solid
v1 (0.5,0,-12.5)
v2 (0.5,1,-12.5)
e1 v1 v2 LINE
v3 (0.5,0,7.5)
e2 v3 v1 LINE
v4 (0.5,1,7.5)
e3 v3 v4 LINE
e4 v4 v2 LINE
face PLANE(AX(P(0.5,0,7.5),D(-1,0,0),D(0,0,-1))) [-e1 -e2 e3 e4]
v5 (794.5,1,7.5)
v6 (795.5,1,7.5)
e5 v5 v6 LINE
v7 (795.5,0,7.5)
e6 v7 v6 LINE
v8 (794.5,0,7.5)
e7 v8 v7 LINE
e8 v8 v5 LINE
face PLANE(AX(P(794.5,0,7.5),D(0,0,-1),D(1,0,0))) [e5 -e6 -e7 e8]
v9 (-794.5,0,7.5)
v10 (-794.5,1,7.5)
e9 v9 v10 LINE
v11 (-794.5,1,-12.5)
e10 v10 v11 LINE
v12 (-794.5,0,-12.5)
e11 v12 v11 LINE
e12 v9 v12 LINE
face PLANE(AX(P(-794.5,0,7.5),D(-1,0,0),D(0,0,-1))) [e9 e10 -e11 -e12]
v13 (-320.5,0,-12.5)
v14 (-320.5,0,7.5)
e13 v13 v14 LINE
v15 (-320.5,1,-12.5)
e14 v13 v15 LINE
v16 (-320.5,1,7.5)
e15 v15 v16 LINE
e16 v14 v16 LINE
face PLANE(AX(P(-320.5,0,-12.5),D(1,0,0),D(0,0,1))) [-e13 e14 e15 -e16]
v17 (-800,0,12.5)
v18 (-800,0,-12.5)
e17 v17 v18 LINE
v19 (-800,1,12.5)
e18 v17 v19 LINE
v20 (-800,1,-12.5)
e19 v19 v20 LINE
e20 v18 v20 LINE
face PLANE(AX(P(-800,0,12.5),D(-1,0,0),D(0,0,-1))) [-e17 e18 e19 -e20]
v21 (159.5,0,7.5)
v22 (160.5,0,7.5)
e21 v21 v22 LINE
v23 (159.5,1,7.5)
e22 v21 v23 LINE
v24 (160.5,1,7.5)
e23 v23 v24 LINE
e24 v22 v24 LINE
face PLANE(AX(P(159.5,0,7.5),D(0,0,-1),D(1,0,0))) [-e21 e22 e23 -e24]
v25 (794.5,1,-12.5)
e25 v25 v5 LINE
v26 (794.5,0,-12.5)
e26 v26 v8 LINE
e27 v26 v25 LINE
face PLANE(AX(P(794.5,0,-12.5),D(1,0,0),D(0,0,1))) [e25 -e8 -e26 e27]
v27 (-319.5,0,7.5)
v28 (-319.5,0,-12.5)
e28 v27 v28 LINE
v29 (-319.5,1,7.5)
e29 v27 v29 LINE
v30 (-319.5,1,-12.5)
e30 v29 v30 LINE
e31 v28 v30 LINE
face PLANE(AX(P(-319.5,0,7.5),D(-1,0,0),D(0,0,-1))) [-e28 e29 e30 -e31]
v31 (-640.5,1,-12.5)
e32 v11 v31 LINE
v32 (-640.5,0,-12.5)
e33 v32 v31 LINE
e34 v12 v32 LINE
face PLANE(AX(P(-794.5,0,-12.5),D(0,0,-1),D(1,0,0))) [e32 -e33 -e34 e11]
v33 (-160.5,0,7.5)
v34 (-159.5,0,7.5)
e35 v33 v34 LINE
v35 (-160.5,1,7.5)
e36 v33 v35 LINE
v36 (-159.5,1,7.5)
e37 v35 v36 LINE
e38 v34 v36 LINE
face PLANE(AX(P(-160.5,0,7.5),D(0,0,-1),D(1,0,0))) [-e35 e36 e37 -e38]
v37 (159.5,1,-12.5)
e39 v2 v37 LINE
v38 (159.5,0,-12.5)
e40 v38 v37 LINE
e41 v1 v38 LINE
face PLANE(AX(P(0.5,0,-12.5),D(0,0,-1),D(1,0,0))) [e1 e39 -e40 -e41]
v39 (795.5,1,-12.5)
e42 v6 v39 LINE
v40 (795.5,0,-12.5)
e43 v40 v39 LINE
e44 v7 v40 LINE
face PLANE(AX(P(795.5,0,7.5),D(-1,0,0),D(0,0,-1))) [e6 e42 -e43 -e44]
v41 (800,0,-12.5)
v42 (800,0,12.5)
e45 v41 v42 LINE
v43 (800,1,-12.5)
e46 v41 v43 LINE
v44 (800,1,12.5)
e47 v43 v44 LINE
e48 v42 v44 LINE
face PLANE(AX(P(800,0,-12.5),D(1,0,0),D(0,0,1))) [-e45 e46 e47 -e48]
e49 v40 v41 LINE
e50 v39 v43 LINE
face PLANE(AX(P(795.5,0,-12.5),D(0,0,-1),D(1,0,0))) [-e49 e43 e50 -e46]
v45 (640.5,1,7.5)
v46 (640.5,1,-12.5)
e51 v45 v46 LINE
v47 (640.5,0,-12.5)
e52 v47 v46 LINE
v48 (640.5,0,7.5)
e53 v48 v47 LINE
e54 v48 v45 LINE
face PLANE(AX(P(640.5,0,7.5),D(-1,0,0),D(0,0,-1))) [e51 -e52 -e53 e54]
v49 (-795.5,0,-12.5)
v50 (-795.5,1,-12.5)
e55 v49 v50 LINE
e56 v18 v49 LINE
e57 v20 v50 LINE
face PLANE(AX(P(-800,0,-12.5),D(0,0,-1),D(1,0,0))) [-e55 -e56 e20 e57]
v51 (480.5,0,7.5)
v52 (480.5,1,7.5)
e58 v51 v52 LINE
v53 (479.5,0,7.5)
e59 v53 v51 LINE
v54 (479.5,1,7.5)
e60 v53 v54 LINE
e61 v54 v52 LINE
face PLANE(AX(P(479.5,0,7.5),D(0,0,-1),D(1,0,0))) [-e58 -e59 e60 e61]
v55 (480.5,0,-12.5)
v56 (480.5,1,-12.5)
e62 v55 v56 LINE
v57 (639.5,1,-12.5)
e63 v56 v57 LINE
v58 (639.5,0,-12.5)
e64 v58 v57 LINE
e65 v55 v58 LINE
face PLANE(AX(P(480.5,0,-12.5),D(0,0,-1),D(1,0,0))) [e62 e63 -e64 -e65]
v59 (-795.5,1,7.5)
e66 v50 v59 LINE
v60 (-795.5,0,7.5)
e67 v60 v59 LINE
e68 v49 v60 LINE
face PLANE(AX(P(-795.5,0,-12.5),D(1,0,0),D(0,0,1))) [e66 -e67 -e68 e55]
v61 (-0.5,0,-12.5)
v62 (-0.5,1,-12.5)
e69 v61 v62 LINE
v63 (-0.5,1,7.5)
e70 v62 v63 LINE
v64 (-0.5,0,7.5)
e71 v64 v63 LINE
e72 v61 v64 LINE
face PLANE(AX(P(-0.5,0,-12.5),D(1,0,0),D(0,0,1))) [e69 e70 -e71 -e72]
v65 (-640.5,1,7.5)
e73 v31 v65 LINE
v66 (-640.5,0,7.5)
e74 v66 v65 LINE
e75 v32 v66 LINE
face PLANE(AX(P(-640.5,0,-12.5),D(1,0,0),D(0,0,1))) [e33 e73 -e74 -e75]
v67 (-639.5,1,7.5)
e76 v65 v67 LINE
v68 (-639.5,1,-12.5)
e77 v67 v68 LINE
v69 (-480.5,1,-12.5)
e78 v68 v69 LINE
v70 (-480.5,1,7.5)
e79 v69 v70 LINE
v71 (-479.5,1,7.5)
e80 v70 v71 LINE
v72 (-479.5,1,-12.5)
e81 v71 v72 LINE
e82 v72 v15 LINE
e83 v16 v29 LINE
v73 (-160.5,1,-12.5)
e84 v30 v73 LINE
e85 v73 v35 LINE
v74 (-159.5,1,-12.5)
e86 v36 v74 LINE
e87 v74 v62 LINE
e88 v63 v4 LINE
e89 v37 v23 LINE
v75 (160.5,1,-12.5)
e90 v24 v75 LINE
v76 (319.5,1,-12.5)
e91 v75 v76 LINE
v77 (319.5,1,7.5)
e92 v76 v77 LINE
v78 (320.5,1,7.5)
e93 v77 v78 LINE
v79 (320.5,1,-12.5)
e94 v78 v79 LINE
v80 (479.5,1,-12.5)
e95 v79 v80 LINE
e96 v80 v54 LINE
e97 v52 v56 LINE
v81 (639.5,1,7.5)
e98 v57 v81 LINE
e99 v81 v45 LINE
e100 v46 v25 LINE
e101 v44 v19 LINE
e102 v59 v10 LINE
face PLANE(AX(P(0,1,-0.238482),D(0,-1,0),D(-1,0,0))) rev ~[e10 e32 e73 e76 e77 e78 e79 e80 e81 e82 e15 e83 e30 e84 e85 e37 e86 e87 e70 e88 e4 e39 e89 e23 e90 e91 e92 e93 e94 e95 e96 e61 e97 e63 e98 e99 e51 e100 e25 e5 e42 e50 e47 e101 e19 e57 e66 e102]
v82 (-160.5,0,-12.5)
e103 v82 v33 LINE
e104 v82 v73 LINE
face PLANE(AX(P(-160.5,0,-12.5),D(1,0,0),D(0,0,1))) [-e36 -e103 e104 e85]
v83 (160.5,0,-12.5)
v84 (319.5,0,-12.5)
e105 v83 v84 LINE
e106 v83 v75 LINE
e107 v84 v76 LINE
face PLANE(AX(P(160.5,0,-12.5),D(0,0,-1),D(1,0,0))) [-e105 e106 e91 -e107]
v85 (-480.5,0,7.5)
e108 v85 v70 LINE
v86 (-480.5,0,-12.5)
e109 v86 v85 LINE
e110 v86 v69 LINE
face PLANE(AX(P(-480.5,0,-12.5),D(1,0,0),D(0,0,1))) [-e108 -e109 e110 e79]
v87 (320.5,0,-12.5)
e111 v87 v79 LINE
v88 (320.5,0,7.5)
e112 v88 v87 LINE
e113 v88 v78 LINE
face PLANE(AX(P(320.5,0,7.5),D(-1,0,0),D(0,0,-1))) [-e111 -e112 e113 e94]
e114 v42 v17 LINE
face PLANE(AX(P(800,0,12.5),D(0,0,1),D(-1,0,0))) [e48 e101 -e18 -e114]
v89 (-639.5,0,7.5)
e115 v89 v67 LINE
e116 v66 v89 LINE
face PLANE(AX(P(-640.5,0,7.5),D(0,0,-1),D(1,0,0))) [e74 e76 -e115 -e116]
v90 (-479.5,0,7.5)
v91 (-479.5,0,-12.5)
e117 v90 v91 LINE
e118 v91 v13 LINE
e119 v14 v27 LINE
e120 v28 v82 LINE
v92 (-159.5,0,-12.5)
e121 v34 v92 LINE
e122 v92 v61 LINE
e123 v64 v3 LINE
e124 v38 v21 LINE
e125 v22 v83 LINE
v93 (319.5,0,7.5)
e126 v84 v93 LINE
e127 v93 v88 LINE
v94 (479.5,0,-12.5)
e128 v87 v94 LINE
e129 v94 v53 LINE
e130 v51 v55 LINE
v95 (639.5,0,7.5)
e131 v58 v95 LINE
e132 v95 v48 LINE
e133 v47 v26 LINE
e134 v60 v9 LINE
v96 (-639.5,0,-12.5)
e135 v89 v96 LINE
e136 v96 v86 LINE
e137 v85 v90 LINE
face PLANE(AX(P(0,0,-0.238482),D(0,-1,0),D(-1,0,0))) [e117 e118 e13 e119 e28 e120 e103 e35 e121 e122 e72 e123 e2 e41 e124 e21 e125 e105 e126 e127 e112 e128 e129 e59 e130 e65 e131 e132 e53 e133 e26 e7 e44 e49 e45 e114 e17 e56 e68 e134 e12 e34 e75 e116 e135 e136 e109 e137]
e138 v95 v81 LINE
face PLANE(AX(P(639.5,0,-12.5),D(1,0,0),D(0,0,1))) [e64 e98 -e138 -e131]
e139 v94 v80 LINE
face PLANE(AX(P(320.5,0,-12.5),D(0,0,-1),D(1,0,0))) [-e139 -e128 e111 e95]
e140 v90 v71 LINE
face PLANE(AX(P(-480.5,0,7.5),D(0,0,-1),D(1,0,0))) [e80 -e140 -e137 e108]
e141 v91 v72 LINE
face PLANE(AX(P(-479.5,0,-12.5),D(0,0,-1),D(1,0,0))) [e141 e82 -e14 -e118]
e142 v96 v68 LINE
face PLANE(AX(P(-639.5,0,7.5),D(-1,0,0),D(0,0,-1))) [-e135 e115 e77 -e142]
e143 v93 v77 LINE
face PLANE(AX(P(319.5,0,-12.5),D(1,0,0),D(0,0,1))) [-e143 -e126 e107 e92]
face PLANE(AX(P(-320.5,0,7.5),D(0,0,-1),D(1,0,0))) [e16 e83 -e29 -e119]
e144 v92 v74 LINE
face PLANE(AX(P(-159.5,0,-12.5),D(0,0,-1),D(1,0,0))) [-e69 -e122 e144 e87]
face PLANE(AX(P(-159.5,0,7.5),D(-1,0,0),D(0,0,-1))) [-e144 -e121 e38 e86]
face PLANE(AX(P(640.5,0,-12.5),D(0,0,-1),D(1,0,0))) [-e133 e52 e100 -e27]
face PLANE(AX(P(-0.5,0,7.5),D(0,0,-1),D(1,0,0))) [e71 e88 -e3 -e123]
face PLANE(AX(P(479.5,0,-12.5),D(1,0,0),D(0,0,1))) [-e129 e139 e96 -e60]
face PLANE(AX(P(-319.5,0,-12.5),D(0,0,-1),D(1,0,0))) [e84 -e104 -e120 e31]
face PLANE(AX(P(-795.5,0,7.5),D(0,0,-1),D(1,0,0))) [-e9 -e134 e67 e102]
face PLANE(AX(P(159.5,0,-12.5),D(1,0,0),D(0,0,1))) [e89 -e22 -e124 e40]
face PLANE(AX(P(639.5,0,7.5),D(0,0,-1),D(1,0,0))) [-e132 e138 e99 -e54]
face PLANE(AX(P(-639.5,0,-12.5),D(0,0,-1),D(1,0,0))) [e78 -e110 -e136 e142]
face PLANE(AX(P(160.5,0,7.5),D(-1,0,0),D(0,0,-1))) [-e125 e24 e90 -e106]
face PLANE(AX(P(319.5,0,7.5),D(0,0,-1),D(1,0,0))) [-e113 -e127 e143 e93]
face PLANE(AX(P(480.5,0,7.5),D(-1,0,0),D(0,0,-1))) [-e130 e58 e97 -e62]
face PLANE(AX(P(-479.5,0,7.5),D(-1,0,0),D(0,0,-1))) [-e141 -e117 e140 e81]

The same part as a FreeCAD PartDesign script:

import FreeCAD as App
import Part
import Sketcher

V = App.Vector


def add_polygon(sketch, points):
    """Adds a closed chain of lines whose ends are joined by coincident constraints."""
    first, n = sketch.GeometryCount, len(points)
    for a, b in zip(points, points[1:] + points[:1]):
        sketch.addGeometry(Part.LineSegment(App.Vector(*a, 0), App.Vector(*b, 0)), False)
    for i in range(n):
        sketch.addConstraint(Sketcher.Constraint("Coincident", first + i, 2, first + (i + 1) % n, 1))

doc = App.newDocument("Part")
body = doc.addObject("PartDesign::Body", "Body")

sketch1 = body.newObject("Sketcher::SketchObject", "Sketch")
sketch1.AttachmentSupport = (doc.getObject("XZ_Plane"), [""])
sketch1.MapMode = "FlatFace"
add_polygon(sketch1, [(-800, -12.5), (-800, 12.5), (800, 12.5), (800, -12.5), (795.5, -12.5), (795.5, 7.5), (794.5, 7.5), (794.5, -12.5), (640.5, -12.5), (640.5, 7.5), (639.5, 7.5), (639.5, -12.5), (480.5, -12.5), (480.5, 7.5), (479.5, 7.5), (479.5, -12.5), (320.5, -12.5), (320.5, 7.5), (319.5, 7.5), (319.5, -12.5), (160.5, -12.5), (160.5, 7.5), (159.5, 7.5), (159.5, -12.5), (0.5, -12.5), (0.5, 7.5), (-0.5, 7.5), (-0.5, -12.5), (-159.5, -12.5), (-159.5, 7.5), (-160.5, 7.5), (-160.5, -12.5), (-319.5, -12.5), (-319.5, 7.5), (-320.5, 7.5), (-320.5, -12.5), (-479.5, -12.5), (-479.5, 7.5), (-480.5, 7.5), (-480.5, -12.5), (-639.5, -12.5), (-639.5, 7.5), (-640.5, 7.5), (-640.5, -12.5), (-794.5, -12.5), (-794.5, 7.5), (-795.5, 7.5), (-795.5, -12.5)])
sketch1.addConstraint([
    Sketcher.Constraint("Vertical", 0),
    Sketcher.Constraint("Horizontal", 1),
    Sketcher.Constraint("Vertical", 2),
    Sketcher.Constraint("Horizontal", 3),
    Sketcher.Constraint("Vertical", 4),
    Sketcher.Constraint("Horizontal", 5),
    Sketcher.Constraint("Vertical", 6),
    Sketcher.Constraint("Horizontal", 7),
    Sketcher.Constraint("Vertical", 8),
    Sketcher.Constraint("Horizontal", 9),
    Sketcher.Constraint("Vertical", 10),
    Sketcher.Constraint("Horizontal", 11),
    Sketcher.Constraint("Vertical", 12),
    Sketcher.Constraint("Horizontal", 13),
    Sketcher.Constraint("Vertical", 14),
    Sketcher.Constraint("Horizontal", 15),
    Sketcher.Constraint("Vertical", 16),
    Sketcher.Constraint("Horizontal", 17),
    Sketcher.Constraint("Vertical", 18),
    Sketcher.Constraint("Horizontal", 19),
    Sketcher.Constraint("Vertical", 20),
    Sketcher.Constraint("Horizontal", 21),
    Sketcher.Constraint("Vertical", 22),
    Sketcher.Constraint("Horizontal", 23),
    Sketcher.Constraint("Vertical", 24),
    Sketcher.Constraint("Horizontal", 25),
    Sketcher.Constraint("Vertical", 26),
    Sketcher.Constraint("Horizontal", 27),
    Sketcher.Constraint("Vertical", 28),
    Sketcher.Constraint("Horizontal", 29),
    Sketcher.Constraint("Vertical", 30),
    Sketcher.Constraint("Horizontal", 31),
    Sketcher.Constraint("Vertical", 32),
    Sketcher.Constraint("Horizontal", 33),
    Sketcher.Constraint("Vertical", 34),
    Sketcher.Constraint("Horizontal", 35),
    Sketcher.Constraint("Vertical", 36),
    Sketcher.Constraint("Horizontal", 37),
    Sketcher.Constraint("Vertical", 38),
    Sketcher.Constraint("Horizontal", 39),
    Sketcher.Constraint("Vertical", 40),
    Sketcher.Constraint("Horizontal", 41),
    Sketcher.Constraint("Vertical", 42),
    Sketcher.Constraint("Horizontal", 43),
    Sketcher.Constraint("Vertical", 44),
    Sketcher.Constraint("Horizontal", 45),
    Sketcher.Constraint("Vertical", 46),
    Sketcher.Constraint("Horizontal", 47),
    Sketcher.Constraint("Symmetric", 0, 2, 2, 2, -1, 1),
    Sketcher.Constraint("Symmetric", 23, 2, 26, 2, -2),
    Sketcher.Constraint("Symmetric", 21, 2, 28, 2, -2),
    Sketcher.Constraint("Symmetric", 19, 2, 30, 2, -2),
    Sketcher.Constraint("Symmetric", 17, 2, 32, 2, -2),
    Sketcher.Constraint("Symmetric", 15, 2, 34, 2, -2),
    Sketcher.Constraint("Symmetric", 13, 2, 36, 2, -2),
    Sketcher.Constraint("Symmetric", 11, 2, 38, 2, -2),
    Sketcher.Constraint("Symmetric", 9, 2, 40, 2, -2),
    Sketcher.Constraint("Symmetric", 7, 2, 42, 2, -2),
    Sketcher.Constraint("Symmetric", 5, 2, 44, 2, -2),
    Sketcher.Constraint("Symmetric", 3, 2, 46, 2, -2),
    Sketcher.Constraint("Horizontal", 3, 2, 6, 2),
    Sketcher.Constraint("Horizontal", 5, 2, 8, 2),
    Sketcher.Constraint("Horizontal", 7, 2, 10, 2),
    Sketcher.Constraint("Horizontal", 9, 2, 12, 2),
    Sketcher.Constraint("Horizontal", 11, 2, 14, 2),
    Sketcher.Constraint("Horizontal", 13, 2, 16, 2),
    Sketcher.Constraint("Horizontal", 15, 2, 18, 2),
    Sketcher.Constraint("Horizontal", 17, 2, 20, 2),
    Sketcher.Constraint("Horizontal", 19, 2, 22, 2),
    Sketcher.Constraint("Horizontal", 21, 2, 24, 2),
    Sketcher.Constraint("Equal", 5, 9),
    Sketcher.Constraint("Equal", 9, 13),
    Sketcher.Constraint("Equal", 11, 15),
    Sketcher.Constraint("Equal", 13, 17),
    Sketcher.Constraint("Equal", 15, 19),
    Sketcher.Constraint("Equal", 17, 21),
    Sketcher.Constraint("Equal", 19, 23),
    Sketcher.Constraint("Equal", 21, 25),
    Sketcher.Constraint("DistanceX", 1, 1, 1, 2, 1600.0),
    Sketcher.Constraint("DistanceX", 5, 2, 5, 1, 1.0),
    Sketcher.Constraint("DistanceX", 7, 2, 7, 1, 154.0),
    Sketcher.Constraint("DistanceX", 11, 2, 11, 1, 159.0),
    Sketcher.Constraint("DistanceY", 0, 1, 0, 2, 25.0),
    Sketcher.Constraint("DistanceY", 4, 1, 4, 2, 20.0),
])
pad1 = body.newObject("PartDesign::Pad", "Pad")
pad1.Profile = sketch1
pad1.Length = 1
pad1.Reversed = True

doc.recompute()
